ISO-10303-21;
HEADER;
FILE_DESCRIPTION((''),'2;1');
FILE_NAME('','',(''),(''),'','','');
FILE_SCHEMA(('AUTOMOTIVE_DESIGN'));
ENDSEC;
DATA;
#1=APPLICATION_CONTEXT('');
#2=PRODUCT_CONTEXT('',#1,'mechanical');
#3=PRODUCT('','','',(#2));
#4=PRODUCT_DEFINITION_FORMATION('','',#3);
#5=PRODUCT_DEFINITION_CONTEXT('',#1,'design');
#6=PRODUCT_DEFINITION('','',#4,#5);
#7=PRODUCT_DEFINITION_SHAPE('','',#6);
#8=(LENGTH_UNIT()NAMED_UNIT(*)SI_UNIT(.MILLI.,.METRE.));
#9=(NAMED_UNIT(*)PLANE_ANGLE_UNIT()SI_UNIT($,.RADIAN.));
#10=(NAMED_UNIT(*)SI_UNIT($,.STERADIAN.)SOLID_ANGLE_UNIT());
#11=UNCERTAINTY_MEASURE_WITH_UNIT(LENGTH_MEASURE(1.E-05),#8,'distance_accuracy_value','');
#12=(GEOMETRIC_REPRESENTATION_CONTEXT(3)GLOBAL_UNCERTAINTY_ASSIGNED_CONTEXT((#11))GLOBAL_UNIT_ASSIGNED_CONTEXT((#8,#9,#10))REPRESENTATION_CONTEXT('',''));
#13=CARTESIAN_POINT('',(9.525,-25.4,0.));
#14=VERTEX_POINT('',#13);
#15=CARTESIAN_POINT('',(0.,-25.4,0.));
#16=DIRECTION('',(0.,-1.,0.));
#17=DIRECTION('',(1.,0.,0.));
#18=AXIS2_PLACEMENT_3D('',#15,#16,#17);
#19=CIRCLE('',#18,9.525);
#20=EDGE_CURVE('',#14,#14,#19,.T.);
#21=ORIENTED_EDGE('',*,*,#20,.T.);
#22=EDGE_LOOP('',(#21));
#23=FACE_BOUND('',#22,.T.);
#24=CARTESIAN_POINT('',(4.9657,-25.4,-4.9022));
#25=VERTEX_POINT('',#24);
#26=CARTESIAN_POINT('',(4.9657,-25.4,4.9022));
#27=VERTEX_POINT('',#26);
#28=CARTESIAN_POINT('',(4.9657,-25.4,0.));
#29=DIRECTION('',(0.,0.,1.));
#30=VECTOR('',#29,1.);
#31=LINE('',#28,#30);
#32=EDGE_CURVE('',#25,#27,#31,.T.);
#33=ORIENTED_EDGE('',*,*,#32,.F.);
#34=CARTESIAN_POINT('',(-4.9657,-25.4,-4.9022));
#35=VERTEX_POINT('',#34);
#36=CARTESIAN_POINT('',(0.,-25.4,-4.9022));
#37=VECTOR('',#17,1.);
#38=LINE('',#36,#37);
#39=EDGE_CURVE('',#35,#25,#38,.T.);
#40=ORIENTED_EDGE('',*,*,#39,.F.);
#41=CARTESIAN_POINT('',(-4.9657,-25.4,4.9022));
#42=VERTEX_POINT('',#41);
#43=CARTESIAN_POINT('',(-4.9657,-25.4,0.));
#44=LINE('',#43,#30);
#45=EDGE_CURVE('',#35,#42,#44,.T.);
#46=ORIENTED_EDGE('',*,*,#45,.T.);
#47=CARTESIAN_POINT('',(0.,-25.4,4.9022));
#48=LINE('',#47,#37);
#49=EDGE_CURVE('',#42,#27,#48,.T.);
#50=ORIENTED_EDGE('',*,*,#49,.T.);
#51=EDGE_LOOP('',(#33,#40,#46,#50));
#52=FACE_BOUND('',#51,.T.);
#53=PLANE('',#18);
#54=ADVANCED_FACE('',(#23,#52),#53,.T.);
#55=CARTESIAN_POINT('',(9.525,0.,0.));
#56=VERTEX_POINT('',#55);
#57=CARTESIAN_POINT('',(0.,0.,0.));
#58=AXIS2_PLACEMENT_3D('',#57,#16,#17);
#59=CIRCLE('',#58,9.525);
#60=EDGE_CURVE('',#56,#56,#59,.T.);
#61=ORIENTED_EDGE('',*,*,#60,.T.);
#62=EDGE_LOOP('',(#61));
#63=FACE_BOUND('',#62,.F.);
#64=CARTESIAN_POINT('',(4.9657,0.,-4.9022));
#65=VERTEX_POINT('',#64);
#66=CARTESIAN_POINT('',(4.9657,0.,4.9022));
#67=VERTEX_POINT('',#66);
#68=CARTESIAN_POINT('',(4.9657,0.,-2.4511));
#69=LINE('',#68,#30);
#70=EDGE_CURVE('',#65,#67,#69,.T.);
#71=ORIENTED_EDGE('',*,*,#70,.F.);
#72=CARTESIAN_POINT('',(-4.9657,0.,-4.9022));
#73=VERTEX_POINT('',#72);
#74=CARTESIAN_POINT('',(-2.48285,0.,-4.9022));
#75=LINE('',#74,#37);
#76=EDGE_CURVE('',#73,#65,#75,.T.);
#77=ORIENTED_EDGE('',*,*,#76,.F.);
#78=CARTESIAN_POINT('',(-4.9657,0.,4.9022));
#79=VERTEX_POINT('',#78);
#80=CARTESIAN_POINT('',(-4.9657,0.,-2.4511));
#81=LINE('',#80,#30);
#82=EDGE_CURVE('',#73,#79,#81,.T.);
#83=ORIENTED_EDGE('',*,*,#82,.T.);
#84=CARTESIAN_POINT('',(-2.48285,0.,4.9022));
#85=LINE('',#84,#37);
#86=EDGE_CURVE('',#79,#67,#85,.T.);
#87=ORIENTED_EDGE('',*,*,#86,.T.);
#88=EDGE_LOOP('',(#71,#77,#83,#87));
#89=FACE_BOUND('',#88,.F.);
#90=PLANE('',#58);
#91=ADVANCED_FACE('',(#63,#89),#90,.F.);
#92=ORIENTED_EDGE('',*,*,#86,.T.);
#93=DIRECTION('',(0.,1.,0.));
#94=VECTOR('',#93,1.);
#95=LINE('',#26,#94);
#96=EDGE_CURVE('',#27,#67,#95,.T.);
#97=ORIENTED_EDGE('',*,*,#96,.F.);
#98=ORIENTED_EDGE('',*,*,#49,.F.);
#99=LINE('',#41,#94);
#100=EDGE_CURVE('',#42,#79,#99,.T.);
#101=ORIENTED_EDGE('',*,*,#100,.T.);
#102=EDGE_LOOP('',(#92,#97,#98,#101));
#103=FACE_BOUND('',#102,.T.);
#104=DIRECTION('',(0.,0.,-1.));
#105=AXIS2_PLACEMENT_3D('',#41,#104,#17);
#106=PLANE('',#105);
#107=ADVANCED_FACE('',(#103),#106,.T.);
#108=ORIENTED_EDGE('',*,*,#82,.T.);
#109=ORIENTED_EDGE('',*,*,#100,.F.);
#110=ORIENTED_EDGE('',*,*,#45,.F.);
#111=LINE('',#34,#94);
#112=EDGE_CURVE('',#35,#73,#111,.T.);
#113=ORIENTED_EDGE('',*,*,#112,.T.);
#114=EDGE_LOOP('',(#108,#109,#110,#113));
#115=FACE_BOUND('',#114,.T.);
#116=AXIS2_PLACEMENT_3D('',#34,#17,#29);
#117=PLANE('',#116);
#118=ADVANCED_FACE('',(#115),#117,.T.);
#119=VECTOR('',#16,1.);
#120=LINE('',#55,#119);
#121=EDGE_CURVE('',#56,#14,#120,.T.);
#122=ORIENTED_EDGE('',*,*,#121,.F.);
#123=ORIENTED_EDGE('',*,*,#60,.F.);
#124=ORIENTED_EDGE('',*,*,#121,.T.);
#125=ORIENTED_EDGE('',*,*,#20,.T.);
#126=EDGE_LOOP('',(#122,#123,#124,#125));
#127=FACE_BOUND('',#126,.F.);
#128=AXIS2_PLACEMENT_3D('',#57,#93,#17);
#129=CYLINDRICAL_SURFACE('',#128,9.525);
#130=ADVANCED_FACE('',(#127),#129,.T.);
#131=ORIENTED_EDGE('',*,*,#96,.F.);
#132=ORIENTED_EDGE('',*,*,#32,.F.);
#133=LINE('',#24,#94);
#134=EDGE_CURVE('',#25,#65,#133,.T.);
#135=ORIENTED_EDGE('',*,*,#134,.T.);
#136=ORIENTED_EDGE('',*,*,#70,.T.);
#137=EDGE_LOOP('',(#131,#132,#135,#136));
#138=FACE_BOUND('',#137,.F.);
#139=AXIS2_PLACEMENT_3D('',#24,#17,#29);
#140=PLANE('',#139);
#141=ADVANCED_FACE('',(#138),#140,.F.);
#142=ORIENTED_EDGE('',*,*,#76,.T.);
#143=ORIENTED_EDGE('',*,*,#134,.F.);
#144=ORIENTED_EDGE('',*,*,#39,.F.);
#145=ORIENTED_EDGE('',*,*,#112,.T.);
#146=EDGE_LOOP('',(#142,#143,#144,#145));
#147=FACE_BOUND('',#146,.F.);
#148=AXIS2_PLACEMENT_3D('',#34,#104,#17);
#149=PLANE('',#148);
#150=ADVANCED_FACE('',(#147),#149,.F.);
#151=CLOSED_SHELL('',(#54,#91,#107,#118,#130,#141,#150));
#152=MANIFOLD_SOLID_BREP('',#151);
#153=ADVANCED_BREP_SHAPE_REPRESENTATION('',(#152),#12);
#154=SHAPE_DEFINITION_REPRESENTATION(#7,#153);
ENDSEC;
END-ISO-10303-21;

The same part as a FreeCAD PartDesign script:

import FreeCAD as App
import Part
import Sketcher

V = App.Vector
Q = App.Units.Quantity


def add_polygon(sketch, points):
    """Adds a closed chain of lines whose ends are joined by coincident constraints."""
    first, n = sketch.GeometryCount, len(points)
    for a, b in zip(points, points[1:] + points[:1]):
        sketch.addGeometry(Part.LineSegment(App.Vector(*a, 0), App.Vector(*b, 0)), False)
    for i in range(n):
        sketch.addConstraint(Sketcher.Constraint("Coincident", first + i, 2, first + (i + 1) % n, 1))

doc = App.newDocument("Part")
body = doc.addObject("PartDesign::Body", "Body")

# Sketch on XZ plane
sketch1 = body.newObject("Sketcher::SketchObject", "Sketch")
sketch1.AttachmentSupport = (doc.getObject("XZ_Plane"), [""])
sketch1.MapMode = "FlatFace"
sketch1.addGeometry(Part.Circle(V(0, 0, 0), V(0, 0, 1), 9.525), False)
sketch1.addConstraint([
    Sketcher.Constraint("Coincident", 0, 3, -1, 1),
    Sketcher.Constraint("Diameter", 0, Q("0.75 in")),
])
pad1 = body.newObject("PartDesign::Pad", "Pad")
pad1.Profile = sketch1
pad1.Length = Q("1 in")

# Sketch on XZ plane
sketch2 = body.newObject("Sketcher::SketchObject", "Sketch001")
sketch2.AttachmentSupport = (doc.getObject("XZ_Plane"), [""])
sketch2.MapMode = "FlatFace"
sketch2.AttachmentOffset = App.Placement(V(0, 0, 1 * 25.4), App.Rotation())
add_polygon(sketch2, [(-4.9657, 4.9022), (-4.9657, -4.9022), (4.9657, -4.9022), (4.9657, 4.9022)])  # lines 0-3
sketch2.addConstraint([
    Sketcher.Constraint("Vertical", 0),
    Sketcher.Constraint("Horizontal", 1),
    Sketcher.Constraint("Vertical", 2),
    Sketcher.Constraint("Horizontal", 3),
    Sketcher.Constraint("Symmetric", 0, 2, 2, 2, -1, 1),
    Sketcher.Constraint("DistanceX", 1, 1, 1, 2, Q("0.391 in")),
    Sketcher.Constraint("DistanceY", 0, 2, 0, 1, Q("0.386 in")),
])
pocket1 = body.newObject("PartDesign::Pocket", "Pocket")
pocket1.Profile = sketch2
pocket1.Type = "ThroughAll"

doc.recompute()
